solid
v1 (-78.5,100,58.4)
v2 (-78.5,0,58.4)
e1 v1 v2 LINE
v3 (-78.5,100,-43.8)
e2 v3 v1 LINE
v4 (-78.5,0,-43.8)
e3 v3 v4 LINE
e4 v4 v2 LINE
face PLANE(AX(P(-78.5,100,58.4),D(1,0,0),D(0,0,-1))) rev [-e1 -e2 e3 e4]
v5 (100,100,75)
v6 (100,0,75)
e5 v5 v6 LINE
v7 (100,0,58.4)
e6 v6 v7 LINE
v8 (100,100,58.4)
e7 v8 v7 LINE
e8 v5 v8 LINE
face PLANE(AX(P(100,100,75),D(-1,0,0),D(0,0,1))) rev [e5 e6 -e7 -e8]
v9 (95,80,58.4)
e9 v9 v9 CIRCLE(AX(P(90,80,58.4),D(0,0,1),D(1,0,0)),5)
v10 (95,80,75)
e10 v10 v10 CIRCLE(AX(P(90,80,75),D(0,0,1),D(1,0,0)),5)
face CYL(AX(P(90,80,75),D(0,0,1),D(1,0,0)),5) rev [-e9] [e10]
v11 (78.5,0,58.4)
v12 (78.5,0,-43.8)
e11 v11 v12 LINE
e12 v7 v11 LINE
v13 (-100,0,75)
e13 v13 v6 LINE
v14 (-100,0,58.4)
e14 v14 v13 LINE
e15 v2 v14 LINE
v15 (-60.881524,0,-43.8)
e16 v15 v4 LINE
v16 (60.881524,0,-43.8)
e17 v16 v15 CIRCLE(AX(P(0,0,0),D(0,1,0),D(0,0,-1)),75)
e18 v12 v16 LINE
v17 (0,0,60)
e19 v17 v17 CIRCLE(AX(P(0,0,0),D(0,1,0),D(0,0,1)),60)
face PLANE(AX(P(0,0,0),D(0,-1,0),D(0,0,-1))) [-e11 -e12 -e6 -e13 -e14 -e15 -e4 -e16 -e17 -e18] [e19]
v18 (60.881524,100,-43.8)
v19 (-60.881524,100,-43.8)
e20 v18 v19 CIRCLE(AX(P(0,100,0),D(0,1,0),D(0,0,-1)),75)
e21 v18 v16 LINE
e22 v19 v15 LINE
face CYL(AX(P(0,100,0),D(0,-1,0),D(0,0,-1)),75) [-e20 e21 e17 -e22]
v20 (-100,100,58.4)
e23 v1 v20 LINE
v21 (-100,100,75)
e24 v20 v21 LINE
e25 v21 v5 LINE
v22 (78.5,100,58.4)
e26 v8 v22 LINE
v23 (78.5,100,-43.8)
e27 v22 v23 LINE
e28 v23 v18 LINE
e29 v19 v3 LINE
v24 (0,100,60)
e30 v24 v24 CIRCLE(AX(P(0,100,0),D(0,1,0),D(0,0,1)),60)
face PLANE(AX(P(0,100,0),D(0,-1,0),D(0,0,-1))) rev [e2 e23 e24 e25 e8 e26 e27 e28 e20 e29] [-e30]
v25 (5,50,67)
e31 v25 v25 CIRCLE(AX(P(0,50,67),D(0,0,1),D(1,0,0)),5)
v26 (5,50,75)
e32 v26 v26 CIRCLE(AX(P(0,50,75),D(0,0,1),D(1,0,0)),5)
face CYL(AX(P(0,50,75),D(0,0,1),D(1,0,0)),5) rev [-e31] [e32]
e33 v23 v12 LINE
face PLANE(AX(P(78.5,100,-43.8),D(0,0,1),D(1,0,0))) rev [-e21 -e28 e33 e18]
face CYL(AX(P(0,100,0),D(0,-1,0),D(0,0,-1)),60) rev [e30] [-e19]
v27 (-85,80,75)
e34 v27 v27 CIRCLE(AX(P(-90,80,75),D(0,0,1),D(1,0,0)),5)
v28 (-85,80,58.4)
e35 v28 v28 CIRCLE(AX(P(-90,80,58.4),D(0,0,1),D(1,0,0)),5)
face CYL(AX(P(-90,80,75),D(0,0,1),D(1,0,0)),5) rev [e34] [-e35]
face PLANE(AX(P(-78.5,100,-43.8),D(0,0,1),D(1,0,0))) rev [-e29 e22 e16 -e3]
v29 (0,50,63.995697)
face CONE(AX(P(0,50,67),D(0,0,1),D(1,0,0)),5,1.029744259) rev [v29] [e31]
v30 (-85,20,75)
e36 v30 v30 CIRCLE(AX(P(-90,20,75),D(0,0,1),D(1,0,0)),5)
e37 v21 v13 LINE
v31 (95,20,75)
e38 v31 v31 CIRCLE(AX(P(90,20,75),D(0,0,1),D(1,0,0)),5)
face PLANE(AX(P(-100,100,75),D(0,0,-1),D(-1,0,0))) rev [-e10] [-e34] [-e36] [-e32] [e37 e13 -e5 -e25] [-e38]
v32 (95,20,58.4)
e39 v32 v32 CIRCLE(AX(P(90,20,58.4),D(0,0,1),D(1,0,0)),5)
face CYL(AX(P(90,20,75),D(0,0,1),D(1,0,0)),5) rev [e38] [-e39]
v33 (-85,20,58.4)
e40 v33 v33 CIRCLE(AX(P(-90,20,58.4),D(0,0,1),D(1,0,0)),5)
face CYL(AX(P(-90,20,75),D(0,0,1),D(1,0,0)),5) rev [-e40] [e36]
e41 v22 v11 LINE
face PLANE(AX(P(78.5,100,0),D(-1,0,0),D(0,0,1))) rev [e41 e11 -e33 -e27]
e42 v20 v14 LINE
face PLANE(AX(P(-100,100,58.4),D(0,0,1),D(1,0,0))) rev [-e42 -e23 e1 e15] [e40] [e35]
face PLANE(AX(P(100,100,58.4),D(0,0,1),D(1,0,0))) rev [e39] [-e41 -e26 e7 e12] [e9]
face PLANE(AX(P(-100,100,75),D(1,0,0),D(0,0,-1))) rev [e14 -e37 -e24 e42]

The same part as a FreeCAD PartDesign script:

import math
import FreeCAD as App
import Part
import Sketcher

doc = App.newDocument("Part")
body = doc.addObject("PartDesign::Body", "Body")

sketch1 = doc.addObject("Sketcher::SketchObject", "Sketch")
body.addObject(sketch1)
sketch1.AttachmentSupport = (doc.XZ_Plane, [""])
sketch1.MapMode = "FlatFace"
sketch1.addGeometry(Part.LineSegment(App.Vector(-100, 75, 0), App.Vector(100, 75, 0)), False)
sketch1.addGeometry(Part.LineSegment(App.Vector(100, 75, 0), App.Vector(100, 58.4, 0)), False)
sketch1.addGeometry(Part.LineSegment(App.Vector(100, 58.4, 0), App.Vector(78.5, 58.4, 0)), False)
sketch1.addGeometry(Part.LineSegment(App.Vector(78.5, 58.4, 0), App.Vector(78.5, -43.8, 0)), False)
sketch1.addGeometry(Part.LineSegment(App.Vector(78.5, -43.8, 0), App.Vector(60.881524, -43.8, 0)), False)
sketch1.addGeometry(Part.ArcOfCircle(Part.Circle(App.Vector(0, 0, 0), App.Vector(0, 0, 1), 75), math.radians(-144.267624), math.radians(-35.732376)), False)
sketch1.addGeometry(Part.LineSegment(App.Vector(-60.881524, -43.8, 0), App.Vector(-78.5, -43.8, 0)), False)
sketch1.addGeometry(Part.LineSegment(App.Vector(-78.5, -43.8, 0), App.Vector(-78.5, 58.4, 0)), False)
sketch1.addGeometry(Part.LineSegment(App.Vector(-78.5, 58.4, 0), App.Vector(-100, 58.4, 0)), False)
sketch1.addGeometry(Part.LineSegment(App.Vector(-100, 58.4, 0), App.Vector(-100, 75, 0)), False)
sketch1.addGeometry(Part.Circle(App.Vector(0, 0, 0), App.Vector(0, 0, 1), 60), False)
sketch1.addConstraint(Sketcher.Constraint("Coincident", 0, 2, 1, 1))
sketch1.addConstraint(Sketcher.Constraint("Coincident", 1, 2, 2, 1))
sketch1.addConstraint(Sketcher.Constraint("Coincident", 2, 2, 3, 1))
sketch1.addConstraint(Sketcher.Constraint("Coincident", 3, 2, 4, 1))
sketch1.addConstraint(Sketcher.Constraint("Coincident", 4, 2, 5, 2))
sketch1.addConstraint(Sketcher.Constraint("Coincident", 5, 1, 6, 1))
sketch1.addConstraint(Sketcher.Constraint("Coincident", 6, 2, 7, 1))
sketch1.addConstraint(Sketcher.Constraint("Coincident", 7, 2, 8, 1))
sketch1.addConstraint(Sketcher.Constraint("Coincident", 8, 2, 9, 1))
sketch1.addConstraint(Sketcher.Constraint("Coincident", 9, 2, 0, 1))
sketch1.addConstraint(Sketcher.Constraint("Horizontal", 0))
sketch1.addConstraint(Sketcher.Constraint("Vertical", 1))
sketch1.addConstraint(Sketcher.Constraint("Horizontal", 2))
sketch1.addConstraint(Sketcher.Constraint("Vertical", 3))
sketch1.addConstraint(Sketcher.Constraint("Horizontal", 4))
sketch1.addConstraint(Sketcher.Constraint("Horizontal", 6))
sketch1.addConstraint(Sketcher.Constraint("Vertical", 7))
sketch1.addConstraint(Sketcher.Constraint("Horizontal", 8))
sketch1.addConstraint(Sketcher.Constraint("Vertical", 9))
sketch1.addConstraint(Sketcher.Constraint("Coincident", 5, 3, -1, 1))
sketch1.addConstraint(Sketcher.Constraint("Coincident", 10, 3, -1, 1))
sketch1.addConstraint(Sketcher.Constraint("Symmetric", 3, 2, 6, 2, -2))
sketch1.addConstraint(Sketcher.Constraint("Symmetric", 1, 2, 8, 2, -2))
sketch1.addConstraint(Sketcher.Constraint("Diameter", 10, 120.0))
sketch1.addConstraint(Sketcher.Constraint("Radius", 5, 75.0))
sketch1.addConstraint(Sketcher.Constraint("DistanceX", 0, 1, 0, 2, 200.0))
sketch1.addConstraint(Sketcher.Constraint("DistanceX", 2, 2, 2, 1, 21.5))
sketch1.addConstraint(Sketcher.Constraint("DistanceY", 1, 2, 1, 1, 16.6))
sketch1.addConstraint(Sketcher.Constraint("DistanceY", 3, 2, 3, 1, 102.2))
sketch1.addConstraint(Sketcher.Constraint("DistanceY", -1, 1, 0, 2, 75.0))
pad1 = doc.addObject("PartDesign::Pad", "Pad")
body.addObject(pad1)
pad1.Profile = sketch1
pad1.Length = 100
pad1.Reversed = True

sketch2 = doc.addObject("Sketcher::SketchObject", "Sketch001")
body.addObject(sketch2)
sketch2.AttachmentSupport = (doc.XY_Plane, [""])
sketch2.MapMode = "FlatFace"
sketch2.AttachmentOffset = App.Placement(App.Vector(0, 0, 75), App.Rotation())
sketch2.addGeometry(Part.Circle(App.Vector(-90, 80, 0), App.Vector(0, 0, 1), 5), False)
sketch2.addGeometry(Part.Circle(App.Vector(-90, 20, 0), App.Vector(0, 0, 1), 5), False)
sketch2.addGeometry(Part.Circle(App.Vector(90, 20, 0), App.Vector(0, 0, 1), 5), False)
sketch2.addGeometry(Part.Circle(App.Vector(90, 80, 0), App.Vector(0, 0, 1), 5), False)
sketch2.addConstraint(Sketcher.Constraint("Equal", 0, 1))
sketch2.addConstraint(Sketcher.Constraint("Equal", 1, 2))
sketch2.addConstraint(Sketcher.Constraint("Equal", 2, 3))
sketch2.addConstraint(Sketcher.Constraint("Symmetric", 1, 3, 2, 3, -2))
sketch2.addConstraint(Sketcher.Constraint("Symmetric", 0, 3, 3, 3, -2))
sketch2.addConstraint(Sketcher.Constraint("Vertical", 0, 3, 1, 3))
sketch2.addConstraint(Sketcher.Constraint("Diameter", 0, 10.0))
sketch2.addConstraint(Sketcher.Constraint("DistanceX", 0, 3, -1, 1, 90.0))
sketch2.addConstraint(Sketcher.Constraint("DistanceY", -1, 1, 0, 3, 80.0))
sketch2.addConstraint(Sketcher.Constraint("DistanceY", -1, 1, 1, 3, 20.0))
doc.recompute()
hole = doc.addObject("PartDesign::Hole", "Hole")
body.addObject(hole)
hole.Profile = sketch2
hole.ThreadType = "None"
hole.Diameter = 10
hole.DepthType = "ThroughAll"

sketch3 = doc.addObject("Sketcher::SketchObject", "Sketch002")
body.addObject(sketch3)
sketch3.AttachmentSupport = (doc.XY_Plane, [""])
sketch3.MapMode = "FlatFace"
sketch3.AttachmentOffset = App.Placement(App.Vector(0, 0, 75), App.Rotation())
sketch3.addGeometry(Part.Circle(App.Vector(0, 50, 0), App.Vector(0, 0, 1), 5), False)
sketch3.addConstraint(Sketcher.Constraint("PointOnObject", 0, 3, -2))
sketch3.addConstraint(Sketcher.Constraint("Diameter", 0, 10.0))
sketch3.addConstraint(Sketcher.Constraint("DistanceY", -1, 1, 0, 3, 50.0))
doc.recompute()
hole2 = doc.addObject("PartDesign::Hole", "Hole001")
body.addObject(hole2)
hole2.Profile = sketch3
hole2.ThreadType = "None"
hole2.Diameter = 10
hole2.DepthType = "Dimension"
hole2.Depth = 8
hole2.DrillPoint = "Angled"
hole2.DrillPointAngle = 118

doc.recompute()
